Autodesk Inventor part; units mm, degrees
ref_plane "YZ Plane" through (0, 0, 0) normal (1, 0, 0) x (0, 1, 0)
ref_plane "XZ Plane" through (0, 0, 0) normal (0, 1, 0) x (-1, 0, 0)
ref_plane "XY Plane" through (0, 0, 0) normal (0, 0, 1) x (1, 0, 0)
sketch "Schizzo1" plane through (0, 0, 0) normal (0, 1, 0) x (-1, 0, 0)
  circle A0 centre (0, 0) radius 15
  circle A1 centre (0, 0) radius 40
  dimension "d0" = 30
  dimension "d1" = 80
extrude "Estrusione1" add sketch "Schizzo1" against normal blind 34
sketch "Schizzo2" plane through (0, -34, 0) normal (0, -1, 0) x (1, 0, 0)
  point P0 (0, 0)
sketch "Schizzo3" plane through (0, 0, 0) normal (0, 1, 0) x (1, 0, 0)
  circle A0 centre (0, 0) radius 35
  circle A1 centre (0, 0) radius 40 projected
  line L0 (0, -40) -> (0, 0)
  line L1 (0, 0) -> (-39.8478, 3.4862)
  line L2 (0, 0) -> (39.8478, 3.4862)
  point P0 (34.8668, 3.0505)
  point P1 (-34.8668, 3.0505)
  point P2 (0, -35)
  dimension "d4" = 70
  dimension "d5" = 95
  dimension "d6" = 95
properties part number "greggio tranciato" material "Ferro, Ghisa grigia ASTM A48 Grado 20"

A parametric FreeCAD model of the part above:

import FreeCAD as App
import Part
import Sketcher

V = App.Vector

doc = App.newDocument("Part")
body = doc.addObject("PartDesign::Body", "Body")

# Sketch on XZ plane
sketch1 = body.newObject("Sketcher::SketchObject", "Sketch")
sketch1.AttachmentSupport = (doc.getObject("XZ_Plane"), [""])
sketch1.MapMode = "FlatFace"
sketch1.addGeometry(Part.Circle(V(0, 0, 0), V(0, 0, 1), 40), False)
sketch1.addGeometry(Part.Circle(V(0, 0, 0), V(0, 0, 1), 15), False)
sketch1.addConstraint(Sketcher.Constraint("Coincident", 0, 3, -1, 1))
sketch1.addConstraint(Sketcher.Constraint("Coincident", 1, 3, -1, 1))
sketch1.addConstraint(Sketcher.Constraint("Diameter", 0, 80.0))
sketch1.addConstraint(Sketcher.Constraint("Diameter", 1, 30.0))
pad1 = body.newObject("PartDesign::Pad", "Pad")
pad1.Profile = sketch1
pad1.Length = 34

doc.recompute()
